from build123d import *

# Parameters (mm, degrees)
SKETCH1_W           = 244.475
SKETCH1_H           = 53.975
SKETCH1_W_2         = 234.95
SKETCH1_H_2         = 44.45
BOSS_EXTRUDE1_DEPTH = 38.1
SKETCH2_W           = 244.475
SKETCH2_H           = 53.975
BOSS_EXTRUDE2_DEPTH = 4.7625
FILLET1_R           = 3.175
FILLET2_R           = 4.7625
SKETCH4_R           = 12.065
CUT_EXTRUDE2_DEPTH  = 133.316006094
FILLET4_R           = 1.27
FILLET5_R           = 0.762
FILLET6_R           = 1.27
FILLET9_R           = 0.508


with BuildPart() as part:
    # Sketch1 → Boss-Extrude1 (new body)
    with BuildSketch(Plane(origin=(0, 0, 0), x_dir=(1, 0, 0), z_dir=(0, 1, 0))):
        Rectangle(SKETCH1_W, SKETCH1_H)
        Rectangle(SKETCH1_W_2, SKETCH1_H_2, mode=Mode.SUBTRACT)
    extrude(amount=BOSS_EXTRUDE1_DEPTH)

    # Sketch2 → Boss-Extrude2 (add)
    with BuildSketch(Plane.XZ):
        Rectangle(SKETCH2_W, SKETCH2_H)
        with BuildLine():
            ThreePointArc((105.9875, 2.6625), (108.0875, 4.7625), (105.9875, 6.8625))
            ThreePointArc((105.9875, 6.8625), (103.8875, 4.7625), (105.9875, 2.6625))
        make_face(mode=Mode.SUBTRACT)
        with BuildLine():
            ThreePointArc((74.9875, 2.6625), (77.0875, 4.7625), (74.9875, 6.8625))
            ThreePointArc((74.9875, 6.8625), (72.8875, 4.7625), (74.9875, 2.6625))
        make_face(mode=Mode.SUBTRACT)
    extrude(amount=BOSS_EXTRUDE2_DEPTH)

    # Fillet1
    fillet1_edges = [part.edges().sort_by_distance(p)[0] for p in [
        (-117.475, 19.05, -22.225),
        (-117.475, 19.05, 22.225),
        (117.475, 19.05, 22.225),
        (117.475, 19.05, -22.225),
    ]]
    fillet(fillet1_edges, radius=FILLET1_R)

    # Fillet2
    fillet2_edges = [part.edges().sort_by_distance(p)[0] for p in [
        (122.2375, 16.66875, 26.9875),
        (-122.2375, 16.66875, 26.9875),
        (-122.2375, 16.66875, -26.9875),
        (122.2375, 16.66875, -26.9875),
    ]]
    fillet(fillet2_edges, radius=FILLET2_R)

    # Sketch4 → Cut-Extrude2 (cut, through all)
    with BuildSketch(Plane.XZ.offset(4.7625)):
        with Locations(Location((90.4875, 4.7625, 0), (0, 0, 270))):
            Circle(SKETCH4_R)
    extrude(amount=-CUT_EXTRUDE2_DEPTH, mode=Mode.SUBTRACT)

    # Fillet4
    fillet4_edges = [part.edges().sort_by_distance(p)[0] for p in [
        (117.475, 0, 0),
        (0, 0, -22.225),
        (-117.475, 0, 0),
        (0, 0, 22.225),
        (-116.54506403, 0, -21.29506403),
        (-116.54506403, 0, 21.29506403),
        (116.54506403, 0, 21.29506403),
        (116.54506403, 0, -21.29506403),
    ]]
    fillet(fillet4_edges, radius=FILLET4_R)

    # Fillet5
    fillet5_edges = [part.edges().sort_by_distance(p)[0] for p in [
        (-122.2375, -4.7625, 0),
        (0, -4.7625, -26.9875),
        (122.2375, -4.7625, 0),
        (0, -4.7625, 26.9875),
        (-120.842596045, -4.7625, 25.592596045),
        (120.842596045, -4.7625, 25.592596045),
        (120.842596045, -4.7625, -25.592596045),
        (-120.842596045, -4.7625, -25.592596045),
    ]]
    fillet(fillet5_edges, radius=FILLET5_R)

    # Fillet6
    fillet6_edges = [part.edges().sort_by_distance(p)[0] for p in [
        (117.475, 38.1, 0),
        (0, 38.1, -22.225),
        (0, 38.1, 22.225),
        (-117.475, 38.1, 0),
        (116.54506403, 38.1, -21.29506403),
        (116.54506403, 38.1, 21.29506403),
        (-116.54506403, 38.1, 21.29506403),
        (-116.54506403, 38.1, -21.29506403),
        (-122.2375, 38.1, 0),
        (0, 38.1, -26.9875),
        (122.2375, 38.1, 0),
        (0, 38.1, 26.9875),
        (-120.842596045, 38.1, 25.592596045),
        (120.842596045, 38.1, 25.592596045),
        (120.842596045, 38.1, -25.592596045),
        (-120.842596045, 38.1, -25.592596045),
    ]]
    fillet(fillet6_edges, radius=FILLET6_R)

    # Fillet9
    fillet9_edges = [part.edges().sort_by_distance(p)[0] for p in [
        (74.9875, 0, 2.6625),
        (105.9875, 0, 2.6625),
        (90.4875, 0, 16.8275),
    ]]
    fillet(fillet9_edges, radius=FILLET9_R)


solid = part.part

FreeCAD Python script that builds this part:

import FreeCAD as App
import Part
import Sketcher

V = App.Vector
Q = App.Units.Quantity


def edges_at(feature, points):
    """Names of the edges that pass closest to the given points."""
    edges = feature.Shape.Edges
    near = lambda p: min(range(len(edges)), key=lambda i: edges[i].distToShape(Part.Vertex(*p))[0])
    return sorted({f"Edge{near(p) + 1}" for p in points})


def add_polygon(sketch, points):
    """Adds a closed chain of lines whose ends are joined by coincident constraints."""
    first, n = sketch.GeometryCount, len(points)
    for a, b in zip(points, points[1:] + points[:1]):
        sketch.addGeometry(Part.LineSegment(App.Vector(*a, 0), App.Vector(*b, 0)), False)
    for i in range(n):
        sketch.addConstraint(Sketcher.Constraint("Coincident", first + i, 2, first + (i + 1) % n, 1))

doc = App.newDocument("Part")
body = doc.addObject("PartDesign::Body", "Body")

# Sketch on XZ plane
sketch1 = doc.addObject("Sketcher::SketchObject", "Sketch")
body.addObject(sketch1)
sketch1.AttachmentSupport = (doc.XZ_Plane, [""])
sketch1.MapMode = "FlatFace"
add_polygon(sketch1, [(-122, -27), (-122, 27), (122, 27), (122, -27)])  # lines 0-3
add_polygon(sketch1, [(117, 22), (-117, 22), (-117, -22), (117, -22)])  # lines 4-7
sketch1.addConstraint([
    Sketcher.Constraint("Vertical", 0),
    Sketcher.Constraint("Horizontal", 1),
    Sketcher.Constraint("Vertical", 2),
    Sketcher.Constraint("Horizontal", 3),
    Sketcher.Constraint("Horizontal", 4),
    Sketcher.Constraint("Vertical", 5),
    Sketcher.Constraint("Horizontal", 6),
    Sketcher.Constraint("Vertical", 7),
    Sketcher.Constraint("Symmetric", 0, 2, 2, 2, -1, 1),
    Sketcher.Constraint("Symmetric", 4, 2, 6, 2, -1, 1),
    Sketcher.Constraint("DistanceX", 4, 2, 4, 1, Q("9.25 in")),
    Sketcher.Constraint("DistanceY", 5, 2, 5, 1, Q("1.75 in")),
    Sketcher.Constraint("DistanceX", 1, 1, 1, 2, Q("9.625 in")),
    Sketcher.Constraint("DistanceY", 0, 1, 0, 2, Q("2.125 in")),
])
pad1 = doc.addObject("PartDesign::Pad", "Pad")
body.addObject(pad1)
pad1.Profile = sketch1
pad1.Length = Q("1.5 in")
pad1.Reversed = True

# Sketch on XZ plane
sketch2 = doc.addObject("Sketcher::SketchObject", "Sketch001")
body.addObject(sketch2)
sketch2.AttachmentSupport = (doc.XZ_Plane, [""])
sketch2.MapMode = "FlatFace"
add_polygon(sketch2, [(-122.2, 27), (-122.2, -27), (122.2, -27), (122.2, 27)])  # lines 0-3
sketch2.addGeometry(Part.Circle(V(75, 4.8, 0), V(0, 0, 1), 2.1), False)  # 4
sketch2.addGeometry(Part.Circle(V(106, 4.8, 0), V(0, 0, 1), 2.1), False)  # 5
sketch2.addConstraint([
    Sketcher.Constraint("Vertical", 0),
    Sketcher.Constraint("Horizontal", 1),
    Sketcher.Constraint("Vertical", 2),
    Sketcher.Constraint("Horizontal", 3),
    Sketcher.Constraint("Equal", 4, 5),
    Sketcher.Constraint("Symmetric", 0, 2, 2, 2, -1, 1),
    Sketcher.Constraint("Horizontal", 4, 3, 5, 3),
    Sketcher.Constraint("Diameter", 4, 4.2),
    Sketcher.Constraint("DistanceX", 1, 1, 1, 2, Q("9.625 in")),
    Sketcher.Constraint("DistanceY", 0, 2, 0, 1, Q("2.125 in")),
    Sketcher.Constraint("DistanceY", 0, 2, 4, 3, Q("1.25 in")),
    Sketcher.Constraint("DistanceX", -1, 1, 4, 3, 74.9875),
    Sketcher.Constraint("DistanceX", -1, 1, 5, 3, 105.9875),
])
pad2 = doc.addObject("PartDesign::Pad", "Pad001")
body.addObject(pad2)
pad2.Profile = sketch2
pad2.Length = Q("0.1875 in")
doc.recompute()

fillet = doc.addObject("PartDesign::Fillet", "Fillet")
body.addObject(fillet)
fillet.Base = (pad2, edges_at(pad2, [
    (-117.475, 19.05, -22.225),
    (-117.475, 19.05, 22.225),
    (117.475, 19.05, 22.225),
    (117.475, 19.05, -22.225),
]))
fillet.Radius = Q("0.125 in")
doc.recompute()

fillet2 = doc.addObject("PartDesign::Fillet", "Fillet001")
body.addObject(fillet2)
fillet2.Base = (fillet, edges_at(fillet, [
    (122.237, 16.669, 26.988),
    (-122.237, 16.669, 26.988),
    (-122.237, 16.669, -26.988),
    (122.237, 16.669, -26.988),
]))
fillet2.Radius = Q("0.1875 in")

# Sketch on XZ plane
sketch3 = doc.addObject("Sketcher::SketchObject", "Sketch002")
body.addObject(sketch3)
sketch3.AttachmentSupport = (doc.XZ_Plane, [""])
sketch3.MapMode = "FlatFace"
sketch3.AttachmentOffset = App.Placement(V(0, 0, 0.1875 * 25.4), App.Rotation())
sketch3.addGeometry(Part.Circle(V(90, 5, 0), V(0, 0, 1), 12), False)
sketch3.addConstraint([
    Sketcher.Constraint("Diameter", 0, Q("0.95 in")),
    Sketcher.Constraint("DistanceX", -1, 1, 0, 3, Q("3.5625 in")),
    Sketcher.Constraint("DistanceY", -1, 1, 0, 3, Q("0.1875 in")),
])
pocket1 = doc.addObject("PartDesign::Pocket", "Pocket")
body.addObject(pocket1)
pocket1.Profile = sketch3
pocket1.Type = "ThroughAll"
doc.recompute()

fillet3 = doc.addObject("PartDesign::Fillet", "Fillet002")
body.addObject(fillet3)
fillet3.Base = (pocket1, edges_at(pocket1, [
    (117.475, 0, 0),
    (0, 0, -22.225),
    (-117.475, 0, 0),
    (0, 0, 22.225),
    (-116.545, 0, -21.295),
    (-116.545, 0, 21.295),
    (116.545, 0, 21.295),
    (116.545, 0, -21.295),
]))
fillet3.Radius = Q("0.05 in")
doc.recompute()

fillet4 = doc.addObject("PartDesign::Fillet", "Fillet003")
body.addObject(fillet4)
fillet4.Base = (fillet3, edges_at(fillet3, [
    (-122.237, -4.763, 0),
    (0, -4.763, -26.988),
    (122.237, -4.763, 0),
    (0, -4.763, 26.988),
    (-120.843, -4.763, 25.593),
    (120.843, -4.763, 25.593),
    (120.843, -4.763, -25.593),
    (-120.843, -4.763, -25.593),
]))
fillet4.Radius = Q("0.03 in")
doc.recompute()

fillet5 = doc.addObject("PartDesign::Fillet", "Fillet004")
body.addObject(fillet5)
fillet5.Base = (fillet4, edges_at(fillet4, [
    (117.475, 38.1, 0),
    (0, 38.1, -22.225),
    (0, 38.1, 22.225),
    (-117.475, 38.1, 0),
    (116.545, 38.1, -21.295),
    (116.545, 38.1, 21.295),
    (-116.545, 38.1, 21.295),
    (-116.545, 38.1, -21.295),
    (-122.237, 38.1, 0),
    (0, 38.1, -26.988),
    (122.237, 38.1, 0),
    (0, 38.1, 26.988),
    (-120.843, 38.1, 25.593),
    (120.843, 38.1, 25.593),
    (120.843, 38.1, -25.593),
    (-120.843, 38.1, -25.593),
]))
fillet5.Radius = Q("0.05 in")
doc.recompute()

fillet6 = doc.addObject("PartDesign::Fillet", "Fillet005")
body.addObject(fillet6)
fillet6.Base = (fillet5, edges_at(fillet5, [(74.987, 0, 2.663), (105.987, 0, 2.663), (90.487, 0, 16.828)]))
fillet6.Radius = Q("0.02 in")

doc.recompute()
